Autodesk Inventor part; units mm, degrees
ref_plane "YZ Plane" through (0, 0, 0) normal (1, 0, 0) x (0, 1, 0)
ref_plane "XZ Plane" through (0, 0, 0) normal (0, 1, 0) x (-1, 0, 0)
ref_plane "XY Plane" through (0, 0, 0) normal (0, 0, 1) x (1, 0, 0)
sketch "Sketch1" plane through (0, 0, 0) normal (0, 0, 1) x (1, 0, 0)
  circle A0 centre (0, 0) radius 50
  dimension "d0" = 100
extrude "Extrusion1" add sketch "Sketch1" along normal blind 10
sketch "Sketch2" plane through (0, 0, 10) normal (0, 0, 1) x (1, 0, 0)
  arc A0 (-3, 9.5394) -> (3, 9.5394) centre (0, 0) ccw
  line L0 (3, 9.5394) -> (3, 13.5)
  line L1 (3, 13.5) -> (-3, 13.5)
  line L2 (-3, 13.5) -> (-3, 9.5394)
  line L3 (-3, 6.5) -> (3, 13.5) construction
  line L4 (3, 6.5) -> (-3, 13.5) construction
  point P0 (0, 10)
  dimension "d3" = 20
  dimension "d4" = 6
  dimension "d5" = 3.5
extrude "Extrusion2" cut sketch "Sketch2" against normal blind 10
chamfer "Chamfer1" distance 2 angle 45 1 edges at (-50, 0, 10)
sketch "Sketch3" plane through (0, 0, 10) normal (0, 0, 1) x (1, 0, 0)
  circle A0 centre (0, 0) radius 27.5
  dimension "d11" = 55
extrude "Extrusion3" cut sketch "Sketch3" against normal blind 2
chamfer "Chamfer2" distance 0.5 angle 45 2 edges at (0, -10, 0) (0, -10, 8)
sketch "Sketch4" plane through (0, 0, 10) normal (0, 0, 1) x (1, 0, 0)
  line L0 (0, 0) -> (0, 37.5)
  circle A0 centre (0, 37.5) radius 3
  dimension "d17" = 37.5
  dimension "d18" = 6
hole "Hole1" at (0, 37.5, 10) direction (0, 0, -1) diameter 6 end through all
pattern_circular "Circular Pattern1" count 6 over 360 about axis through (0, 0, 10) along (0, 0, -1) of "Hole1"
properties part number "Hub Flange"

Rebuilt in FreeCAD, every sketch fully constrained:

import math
import FreeCAD as App
import Part
import Sketcher
from FreeCAD import Vector
Q = App.Units.Quantity


def edges_at(feature, points):
    """Names of the edges that pass closest to the given points."""
    edges = feature.Shape.Edges
    near = lambda p: min(range(len(edges)), key=lambda i: edges[i].distToShape(Part.Vertex(*p))[0])
    return sorted({f"Edge{near(p) + 1}" for p in points})

doc = App.newDocument("Part")
body = doc.addObject("PartDesign::Body", "Body")

sketch1 = doc.addObject("Sketcher::SketchObject", "Sketch")
body.addObject(sketch1)
sketch1.AttachmentSupport = (doc.XY_Plane, [""])
sketch1.MapMode = "FlatFace"
sketch1.addGeometry(Part.Circle(Vector(0, 0, 0), Vector(0, 0, 1), 50), False)
sketch1.addConstraint([
    Sketcher.Constraint("Coincident", 0, 3, -1, 1),
    Sketcher.Constraint("Diameter", 0, Q("100 mm")),
])
pad1 = doc.addObject("PartDesign::Pad", "Pad")
body.addObject(pad1)
pad1.Profile = sketch1
pad1.Length = 10

sketch2 = doc.addObject("Sketcher::SketchObject", "Sketch001")
body.addObject(sketch2)
sketch2.AttachmentSupport = (doc.XY_Plane, [""])
sketch2.MapMode = "FlatFace"
sketch2.AttachmentOffset = App.Placement(Vector(0, 0, 10), App.Rotation())
sketch2.addGeometry([
    Part.LineSegment(Vector(-3, 13.5, 0), Vector(-3, 9.5394, 0)),
    Part.ArcOfCircle(Part.Circle(Vector(0, 0, 0), Vector(0, 0, 1), 10.000008), math.radians(107.457589), math.radians(432.542411)),
    Part.LineSegment(Vector(3, 9.5394, 0), Vector(3, 13.5, 0)),
    Part.LineSegment(Vector(3, 13.5, 0), Vector(-3, 13.5, 0)),
], False)
sketch2.addConstraint([
    Sketcher.Constraint("Coincident", 0, 2, 1, 1),
    Sketcher.Constraint("Coincident", 1, 2, 2, 1),
    Sketcher.Constraint("Coincident", 2, 2, 3, 1),
    Sketcher.Constraint("Coincident", 3, 2, 0, 1),
    Sketcher.Constraint("Vertical", 0),
    Sketcher.Constraint("Vertical", 2),
    Sketcher.Constraint("Horizontal", 3),
    Sketcher.Constraint("Coincident", 1, 3, -1, 1),
    Sketcher.Constraint("Horizontal", 0, 2, 1, 2),
    Sketcher.Constraint("Radius", 1, Q("10 mm")),
    Sketcher.Constraint("DistanceX", 3, 2, 3, 1, Q("6 mm")),
    Sketcher.Constraint("DistanceY", -1, 1, 2, 2, Q("13.5 mm")),
])
pocket1 = doc.addObject("PartDesign::Pocket", "Pocket")
body.addObject(pocket1)
pocket1.Profile = sketch2
pocket1.Length = 10
doc.recompute()

chamfer = doc.addObject("PartDesign::Chamfer", "Chamfer")
body.addObject(chamfer)
chamfer.Base = (pocket1, edges_at(pocket1, [(-50, 0, 10)]))
chamfer.Size = 2

sketch3 = doc.addObject("Sketcher::SketchObject", "Sketch002")
body.addObject(sketch3)
sketch3.AttachmentSupport = (doc.XY_Plane, [""])
sketch3.MapMode = "FlatFace"
sketch3.AttachmentOffset = App.Placement(Vector(0, 0, 10), App.Rotation())
sketch3.addGeometry(Part.Circle(Vector(0, 0, 0), Vector(0, 0, 1), 27.5), False)
sketch3.addConstraint([
    Sketcher.Constraint("Coincident", 0, 3, -1, 1),
    Sketcher.Constraint("Diameter", 0, Q("55 mm")),
])
pocket2 = doc.addObject("PartDesign::Pocket", "Pocket001")
body.addObject(pocket2)
pocket2.Profile = sketch3
pocket2.Length = 2
doc.recompute()

chamfer2 = doc.addObject("PartDesign::Chamfer", "Chamfer001")
body.addObject(chamfer2)
chamfer2.Base = (pocket2, edges_at(pocket2, [(0, -10, 0), (0, -10, 8)]))
chamfer2.Size = 0.5

sketch4 = doc.addObject("Sketcher::SketchObject", "Sketch003")
body.addObject(sketch4)
sketch4.AttachmentSupport = (doc.XY_Plane, [""])
sketch4.MapMode = "FlatFace"
sketch4.AttachmentOffset = App.Placement(Vector(0, 0, 10), App.Rotation())
sketch4.addGeometry(Part.Circle(Vector(0, 37.5, 0), Vector(0, 0, 1), 3), False)
sketch4.addConstraint([
    Sketcher.Constraint("PointOnObject", 0, 3, -2),
    Sketcher.Constraint("Diameter", 0, Q("6 mm")),
    Sketcher.Constraint("DistanceY", -1, 1, 0, 3, Q("37.5 mm")),
])
doc.recompute()
hole = doc.addObject("PartDesign::Hole", "Hole")
body.addObject(hole)
hole.Profile = sketch4
hole.ThreadType = "None"
hole.Diameter = 6
hole.DepthType = "ThroughAll"
doc.recompute()

polarpattern = doc.addObject("PartDesign::PolarPattern", "PolarPattern")
body.addObject(polarpattern)
polarpattern.Originals = [hole]
polarpattern.Axis = (doc.Z_Axis, [""])
polarpattern.Angle = 360
polarpattern.Occurrences = 6
body.Tip = polarpattern

doc.recompute()
